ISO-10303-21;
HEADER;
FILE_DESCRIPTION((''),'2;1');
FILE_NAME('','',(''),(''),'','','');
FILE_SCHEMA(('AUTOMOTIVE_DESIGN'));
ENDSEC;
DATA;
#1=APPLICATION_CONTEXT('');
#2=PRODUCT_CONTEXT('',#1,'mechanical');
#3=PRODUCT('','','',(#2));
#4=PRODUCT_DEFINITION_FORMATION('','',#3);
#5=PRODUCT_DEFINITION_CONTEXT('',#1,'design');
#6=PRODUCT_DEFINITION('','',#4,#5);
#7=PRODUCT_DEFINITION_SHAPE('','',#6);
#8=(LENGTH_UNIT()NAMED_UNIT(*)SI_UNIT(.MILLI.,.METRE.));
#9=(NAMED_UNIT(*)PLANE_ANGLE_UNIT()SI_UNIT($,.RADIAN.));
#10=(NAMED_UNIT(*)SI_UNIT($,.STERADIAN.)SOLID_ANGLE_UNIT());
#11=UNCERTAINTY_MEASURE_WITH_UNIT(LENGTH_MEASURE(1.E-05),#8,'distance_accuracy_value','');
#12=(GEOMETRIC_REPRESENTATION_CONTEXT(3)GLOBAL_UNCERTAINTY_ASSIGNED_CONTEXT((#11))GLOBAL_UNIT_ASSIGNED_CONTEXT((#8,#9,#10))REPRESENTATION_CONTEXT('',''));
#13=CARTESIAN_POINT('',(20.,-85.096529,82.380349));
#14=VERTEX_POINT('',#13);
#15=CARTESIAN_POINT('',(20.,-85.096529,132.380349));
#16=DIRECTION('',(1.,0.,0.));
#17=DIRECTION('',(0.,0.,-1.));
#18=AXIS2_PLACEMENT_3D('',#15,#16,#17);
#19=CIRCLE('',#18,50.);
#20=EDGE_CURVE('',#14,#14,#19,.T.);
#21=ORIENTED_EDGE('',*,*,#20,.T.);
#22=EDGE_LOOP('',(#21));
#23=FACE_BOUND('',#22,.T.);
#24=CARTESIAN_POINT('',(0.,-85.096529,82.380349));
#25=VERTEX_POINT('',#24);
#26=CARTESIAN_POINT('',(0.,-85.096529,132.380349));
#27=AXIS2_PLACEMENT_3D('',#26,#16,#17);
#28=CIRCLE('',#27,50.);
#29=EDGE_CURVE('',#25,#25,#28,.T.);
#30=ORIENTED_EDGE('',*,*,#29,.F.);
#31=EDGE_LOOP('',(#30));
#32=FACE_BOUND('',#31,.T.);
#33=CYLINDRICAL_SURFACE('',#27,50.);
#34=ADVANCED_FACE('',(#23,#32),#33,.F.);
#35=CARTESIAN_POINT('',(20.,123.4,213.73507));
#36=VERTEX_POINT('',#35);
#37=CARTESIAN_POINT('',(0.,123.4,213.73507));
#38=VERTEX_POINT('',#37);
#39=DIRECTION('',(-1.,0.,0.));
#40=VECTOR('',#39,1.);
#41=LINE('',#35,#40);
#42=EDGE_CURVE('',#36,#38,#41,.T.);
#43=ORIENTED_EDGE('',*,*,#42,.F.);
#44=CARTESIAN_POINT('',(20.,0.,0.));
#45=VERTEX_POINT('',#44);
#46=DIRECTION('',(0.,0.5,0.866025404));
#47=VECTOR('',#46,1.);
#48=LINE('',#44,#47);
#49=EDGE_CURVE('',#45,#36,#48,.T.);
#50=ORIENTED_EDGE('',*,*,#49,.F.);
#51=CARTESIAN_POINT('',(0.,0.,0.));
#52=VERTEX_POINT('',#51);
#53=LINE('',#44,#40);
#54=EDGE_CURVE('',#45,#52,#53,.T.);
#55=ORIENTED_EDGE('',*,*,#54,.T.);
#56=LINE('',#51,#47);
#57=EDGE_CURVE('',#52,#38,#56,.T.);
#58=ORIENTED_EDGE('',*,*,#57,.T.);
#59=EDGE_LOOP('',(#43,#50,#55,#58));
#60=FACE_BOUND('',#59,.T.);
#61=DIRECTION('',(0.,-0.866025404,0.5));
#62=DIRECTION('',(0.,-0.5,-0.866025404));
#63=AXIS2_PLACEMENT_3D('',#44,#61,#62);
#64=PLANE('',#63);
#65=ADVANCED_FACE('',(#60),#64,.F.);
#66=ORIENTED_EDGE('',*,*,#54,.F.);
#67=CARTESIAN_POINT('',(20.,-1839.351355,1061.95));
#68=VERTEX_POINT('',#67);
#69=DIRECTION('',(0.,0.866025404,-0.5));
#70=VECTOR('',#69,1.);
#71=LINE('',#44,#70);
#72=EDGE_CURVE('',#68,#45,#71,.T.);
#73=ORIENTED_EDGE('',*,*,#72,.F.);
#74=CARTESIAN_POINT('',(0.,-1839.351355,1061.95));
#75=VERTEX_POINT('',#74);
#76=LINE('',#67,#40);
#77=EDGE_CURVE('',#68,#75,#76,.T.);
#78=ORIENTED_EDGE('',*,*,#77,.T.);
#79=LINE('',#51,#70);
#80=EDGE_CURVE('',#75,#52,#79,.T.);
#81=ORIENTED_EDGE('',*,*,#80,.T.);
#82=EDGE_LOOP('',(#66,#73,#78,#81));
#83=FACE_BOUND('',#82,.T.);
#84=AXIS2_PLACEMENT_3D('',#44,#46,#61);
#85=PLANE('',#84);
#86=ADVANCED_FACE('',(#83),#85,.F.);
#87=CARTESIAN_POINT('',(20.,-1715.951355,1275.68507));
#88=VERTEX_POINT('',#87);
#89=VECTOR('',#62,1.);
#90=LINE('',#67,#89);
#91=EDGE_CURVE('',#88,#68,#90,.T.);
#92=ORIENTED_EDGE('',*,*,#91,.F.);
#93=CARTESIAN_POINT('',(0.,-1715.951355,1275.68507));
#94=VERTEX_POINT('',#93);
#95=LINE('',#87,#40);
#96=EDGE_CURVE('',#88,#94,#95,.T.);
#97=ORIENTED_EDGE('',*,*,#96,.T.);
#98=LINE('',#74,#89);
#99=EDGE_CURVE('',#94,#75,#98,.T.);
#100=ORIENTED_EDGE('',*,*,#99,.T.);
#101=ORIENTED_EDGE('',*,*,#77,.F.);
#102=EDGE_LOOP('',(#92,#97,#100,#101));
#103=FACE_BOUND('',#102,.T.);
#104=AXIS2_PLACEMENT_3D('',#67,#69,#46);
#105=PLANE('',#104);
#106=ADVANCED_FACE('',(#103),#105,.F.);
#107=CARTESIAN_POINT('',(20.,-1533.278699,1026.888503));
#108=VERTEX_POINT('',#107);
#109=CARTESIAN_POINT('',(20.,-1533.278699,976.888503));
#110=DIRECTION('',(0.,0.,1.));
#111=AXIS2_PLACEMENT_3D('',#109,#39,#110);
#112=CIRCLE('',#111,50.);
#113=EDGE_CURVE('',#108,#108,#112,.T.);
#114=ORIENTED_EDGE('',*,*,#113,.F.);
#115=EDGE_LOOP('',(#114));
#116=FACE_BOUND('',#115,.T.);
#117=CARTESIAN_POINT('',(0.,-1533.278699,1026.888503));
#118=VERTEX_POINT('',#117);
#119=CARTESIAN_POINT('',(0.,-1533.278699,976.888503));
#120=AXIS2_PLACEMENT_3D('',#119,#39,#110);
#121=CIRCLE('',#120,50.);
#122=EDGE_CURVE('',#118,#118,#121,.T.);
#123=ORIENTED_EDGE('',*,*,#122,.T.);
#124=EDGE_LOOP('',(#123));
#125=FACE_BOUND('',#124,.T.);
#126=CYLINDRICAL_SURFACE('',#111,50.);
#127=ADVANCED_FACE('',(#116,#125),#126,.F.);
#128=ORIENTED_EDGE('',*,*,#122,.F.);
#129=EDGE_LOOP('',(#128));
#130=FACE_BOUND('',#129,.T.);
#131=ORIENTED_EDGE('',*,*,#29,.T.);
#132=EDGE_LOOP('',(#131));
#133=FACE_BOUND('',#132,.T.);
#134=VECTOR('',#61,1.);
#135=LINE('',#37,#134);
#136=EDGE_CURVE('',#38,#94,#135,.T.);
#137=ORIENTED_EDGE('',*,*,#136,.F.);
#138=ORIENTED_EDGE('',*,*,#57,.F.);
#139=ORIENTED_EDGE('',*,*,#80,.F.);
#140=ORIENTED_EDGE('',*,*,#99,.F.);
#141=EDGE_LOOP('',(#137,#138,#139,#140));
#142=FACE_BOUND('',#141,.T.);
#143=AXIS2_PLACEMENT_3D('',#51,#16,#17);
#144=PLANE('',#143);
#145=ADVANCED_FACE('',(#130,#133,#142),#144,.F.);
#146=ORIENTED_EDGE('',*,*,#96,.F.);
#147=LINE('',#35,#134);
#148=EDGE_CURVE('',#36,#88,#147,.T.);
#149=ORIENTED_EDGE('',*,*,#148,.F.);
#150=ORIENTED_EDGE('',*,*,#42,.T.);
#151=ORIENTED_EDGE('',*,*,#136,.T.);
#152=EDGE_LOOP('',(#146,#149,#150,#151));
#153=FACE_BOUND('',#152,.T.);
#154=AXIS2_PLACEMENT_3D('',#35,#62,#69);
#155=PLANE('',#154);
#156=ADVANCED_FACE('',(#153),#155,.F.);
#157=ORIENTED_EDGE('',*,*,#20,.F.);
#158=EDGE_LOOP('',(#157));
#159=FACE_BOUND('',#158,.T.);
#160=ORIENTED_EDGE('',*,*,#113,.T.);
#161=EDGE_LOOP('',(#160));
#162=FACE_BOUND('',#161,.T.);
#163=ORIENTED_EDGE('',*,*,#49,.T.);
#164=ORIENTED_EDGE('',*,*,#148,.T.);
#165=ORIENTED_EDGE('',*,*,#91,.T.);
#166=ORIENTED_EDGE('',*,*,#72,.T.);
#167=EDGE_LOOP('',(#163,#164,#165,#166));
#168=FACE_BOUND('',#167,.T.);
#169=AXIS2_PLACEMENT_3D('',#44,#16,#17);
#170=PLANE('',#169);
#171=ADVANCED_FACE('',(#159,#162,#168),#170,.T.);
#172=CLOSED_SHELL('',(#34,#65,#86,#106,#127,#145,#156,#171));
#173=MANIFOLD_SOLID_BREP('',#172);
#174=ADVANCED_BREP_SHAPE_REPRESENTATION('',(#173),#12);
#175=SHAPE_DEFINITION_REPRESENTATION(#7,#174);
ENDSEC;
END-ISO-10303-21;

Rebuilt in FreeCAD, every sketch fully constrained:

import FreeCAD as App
import Part
import Sketcher
Q = App.Units.Quantity

doc = App.newDocument("Part")
body = doc.addObject("PartDesign::Body", "Body")

# Sketch on YZ plane
sketch1 = doc.addObject("Sketcher::SketchObject", "Sketch")
body.addObject(sketch1)
sketch1.AttachmentSupport = (doc.YZ_Plane, [""])
sketch1.MapMode = "FlatFace"
sketch1.addGeometry([
    Part.LineSegment(App.Vector(-1839, 1062, 0), App.Vector(0, 0, 0)),
    Part.LineSegment(App.Vector(0, 0, 0), App.Vector(123, 214, 0)),
    Part.LineSegment(App.Vector(123, 214, 0), App.Vector(-1716, 1276, 0)),
    Part.LineSegment(App.Vector(-1716, 1276, 0), App.Vector(-1839, 1062, 0)),
], False)
sketch1.addConstraint([
    Sketcher.Constraint("Coincident", 0, 2, 1, 1),
    Sketcher.Constraint("Coincident", 1, 2, 2, 1),
    Sketcher.Constraint("Coincident", 2, 2, 3, 1),
    Sketcher.Constraint("Coincident", 3, 2, 0, 1),
    Sketcher.Constraint("Coincident", 0, 2, -1, 1),
    Sketcher.Constraint("Perpendicular", 0, 1),
    Sketcher.Constraint("Perpendicular", 1, 2),
    Sketcher.Constraint("Perpendicular", 2, 3),
    Sketcher.Constraint("Angle", 0, Q("-30 deg")),
    Sketcher.Constraint("Distance", 0, Q("2123.9 mm")),
    Sketcher.Constraint("Distance", 1, Q("246.8 mm")),
])
pad1 = doc.addObject("PartDesign::Pad", "Pad")
body.addObject(pad1)
pad1.Profile = sketch1
pad1.Length = 20

# Sketch on YZ plane
sketch2 = doc.addObject("Sketcher::SketchObject", "Sketch001")
body.addObject(sketch2)
sketch2.AttachmentSupport = (doc.YZ_Plane, [""])
sketch2.MapMode = "FlatFace"
sketch2.addGeometry(Part.Circle(App.Vector(-1533, 977, 0), App.Vector(0, 0, 1), 50), False)
sketch2.addConstraint([
    Sketcher.Constraint("Diameter", 0, Q("100 mm")),
    Sketcher.Constraint("DistanceX", 0, 3, -1, 1, Q("1533.278699 mm")),
    Sketcher.Constraint("DistanceY", -1, 1, 0, 3, Q("976.888503 mm")),
])
pocket1 = doc.addObject("PartDesign::Pocket", "Pocket")
body.addObject(pocket1)
pocket1.Profile = sketch2
pocket1.Type = "ThroughAll"
pocket1.Reversed = True

# Sketch on YZ plane
sketch3 = doc.addObject("Sketcher::SketchObject", "Sketch002")
body.addObject(sketch3)
sketch3.AttachmentSupport = (doc.YZ_Plane, [""])
sketch3.MapMode = "FlatFace"
sketch3.AttachmentOffset = App.Placement(App.Vector(0, 0, 20), App.Rotation())
sketch3.addGeometry(Part.Circle(App.Vector(-85, 132, 0), App.Vector(0, 0, 1), 50), False)
sketch3.addConstraint([
    Sketcher.Constraint("Diameter", 0, Q("100 mm")),
    Sketcher.Constraint("DistanceX", 0, 3, -1, 1, Q("85.096529 mm")),
    Sketcher.Constraint("DistanceY", -1, 1, 0, 3, Q("132.380349 mm")),
])
pocket2 = doc.addObject("PartDesign::Pocket", "Pocket001")
body.addObject(pocket2)
pocket2.Profile = sketch3
pocket2.Type = "ThroughAll"

doc.recompute()
